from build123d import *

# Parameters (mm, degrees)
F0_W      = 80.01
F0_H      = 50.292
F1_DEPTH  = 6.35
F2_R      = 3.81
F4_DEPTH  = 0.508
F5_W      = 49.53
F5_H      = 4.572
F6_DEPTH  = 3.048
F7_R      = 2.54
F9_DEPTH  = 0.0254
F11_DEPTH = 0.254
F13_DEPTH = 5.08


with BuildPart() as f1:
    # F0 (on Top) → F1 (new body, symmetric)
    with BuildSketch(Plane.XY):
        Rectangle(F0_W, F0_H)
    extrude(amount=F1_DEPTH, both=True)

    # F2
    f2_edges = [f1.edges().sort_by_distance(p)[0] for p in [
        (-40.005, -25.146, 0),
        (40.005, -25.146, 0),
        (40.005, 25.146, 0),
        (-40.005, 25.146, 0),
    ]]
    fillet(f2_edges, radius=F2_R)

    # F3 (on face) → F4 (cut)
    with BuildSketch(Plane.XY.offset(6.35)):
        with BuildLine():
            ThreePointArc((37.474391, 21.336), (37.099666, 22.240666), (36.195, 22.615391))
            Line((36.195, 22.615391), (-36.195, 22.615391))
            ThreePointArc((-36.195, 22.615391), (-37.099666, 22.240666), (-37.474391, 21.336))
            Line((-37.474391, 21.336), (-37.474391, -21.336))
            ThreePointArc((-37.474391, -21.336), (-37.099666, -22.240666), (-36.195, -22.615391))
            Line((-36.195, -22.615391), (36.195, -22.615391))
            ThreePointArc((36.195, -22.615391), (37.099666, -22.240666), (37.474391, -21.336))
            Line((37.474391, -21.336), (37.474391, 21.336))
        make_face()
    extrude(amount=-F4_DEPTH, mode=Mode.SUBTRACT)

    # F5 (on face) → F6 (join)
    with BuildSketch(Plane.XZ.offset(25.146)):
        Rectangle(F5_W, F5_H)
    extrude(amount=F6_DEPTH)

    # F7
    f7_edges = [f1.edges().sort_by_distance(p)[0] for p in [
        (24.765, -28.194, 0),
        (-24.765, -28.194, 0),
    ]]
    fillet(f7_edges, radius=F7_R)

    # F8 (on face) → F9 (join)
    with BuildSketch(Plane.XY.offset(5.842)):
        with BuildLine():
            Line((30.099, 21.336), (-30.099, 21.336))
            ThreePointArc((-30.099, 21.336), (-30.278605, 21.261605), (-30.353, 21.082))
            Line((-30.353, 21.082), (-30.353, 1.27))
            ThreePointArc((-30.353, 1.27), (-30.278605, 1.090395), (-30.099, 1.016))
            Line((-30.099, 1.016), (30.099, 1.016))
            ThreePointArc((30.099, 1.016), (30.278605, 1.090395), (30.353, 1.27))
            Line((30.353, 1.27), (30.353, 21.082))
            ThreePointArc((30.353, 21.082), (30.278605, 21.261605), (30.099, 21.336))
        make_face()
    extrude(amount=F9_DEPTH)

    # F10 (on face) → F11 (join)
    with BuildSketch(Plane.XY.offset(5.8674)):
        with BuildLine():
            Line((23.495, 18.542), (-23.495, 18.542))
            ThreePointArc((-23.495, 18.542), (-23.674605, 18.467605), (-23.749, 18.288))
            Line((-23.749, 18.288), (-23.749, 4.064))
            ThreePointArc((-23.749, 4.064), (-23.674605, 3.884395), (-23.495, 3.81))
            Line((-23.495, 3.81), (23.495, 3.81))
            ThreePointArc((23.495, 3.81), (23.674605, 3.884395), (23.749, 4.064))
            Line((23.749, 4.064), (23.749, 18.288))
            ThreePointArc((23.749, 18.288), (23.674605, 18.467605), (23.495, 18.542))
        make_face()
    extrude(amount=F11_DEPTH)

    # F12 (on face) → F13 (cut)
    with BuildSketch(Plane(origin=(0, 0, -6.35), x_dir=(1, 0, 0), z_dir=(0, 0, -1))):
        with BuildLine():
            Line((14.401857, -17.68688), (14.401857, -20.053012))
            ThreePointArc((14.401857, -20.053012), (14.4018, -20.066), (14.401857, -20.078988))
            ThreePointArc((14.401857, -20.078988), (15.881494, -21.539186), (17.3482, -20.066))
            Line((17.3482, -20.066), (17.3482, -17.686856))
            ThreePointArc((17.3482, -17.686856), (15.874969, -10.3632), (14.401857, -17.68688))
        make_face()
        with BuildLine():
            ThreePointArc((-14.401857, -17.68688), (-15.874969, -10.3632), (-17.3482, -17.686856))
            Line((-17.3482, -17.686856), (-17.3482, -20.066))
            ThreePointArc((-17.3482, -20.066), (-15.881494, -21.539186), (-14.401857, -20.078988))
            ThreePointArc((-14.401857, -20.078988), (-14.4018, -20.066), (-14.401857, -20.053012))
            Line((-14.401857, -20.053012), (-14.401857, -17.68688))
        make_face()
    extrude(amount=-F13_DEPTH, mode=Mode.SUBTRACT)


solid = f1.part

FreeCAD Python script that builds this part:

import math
import FreeCAD as App
import Part
import Sketcher

V = App.Vector
Q = App.Units.Quantity


def edges_at(feature, points):
    """Names of the edges that pass closest to the given points."""
    edges = feature.Shape.Edges
    near = lambda p: min(range(len(edges)), key=lambda i: edges[i].distToShape(Part.Vertex(*p))[0])
    return sorted({f"Edge{near(p) + 1}" for p in points})


def add_polygon(sketch, points):
    """Adds a closed chain of lines whose ends are joined by coincident constraints."""
    first, n = sketch.GeometryCount, len(points)
    for a, b in zip(points, points[1:] + points[:1]):
        sketch.addGeometry(Part.LineSegment(App.Vector(*a, 0), App.Vector(*b, 0)), False)
    for i in range(n):
        sketch.addConstraint(Sketcher.Constraint("Coincident", first + i, 2, first + (i + 1) % n, 1))

doc = App.newDocument("Part")
params = doc.addObject("Spreadsheet::Sheet", "Params")
for row, (alias, value) in enumerate([
    ("sketch1_width", "3.15 in"),
    ("sketch1_height", "1.98 in"),
    ("pad1_length", "0.5 in"),
    ("fillet_radius", "0.15 in"),
    ("sketch2_width", "2.85 in"),
    ("sketch2_height", "1.68 in"),
    ("pocket1_length", "0.02 in"),
    ("sketch3_width", "1.95 in"),
    ("sketch3_height", "0.18 in"),
    ("pad2_length", "0.12 in"),
    ("fillet2_radius", "0.1 in"),
    ("sketch4_radius", "0.01 in"),
    ("sketch4_width", "2.37 in"),
    ("sketch4_height", "0.78 in"),
    ("pad3_length", "0.001 in"),
    ("sketch5_radius", "0.01 in"),
    ("sketch5_width", "1.85 in"),
    ("sketch5_height", "0.56 in"),
    ("pad4_length", "0.01 in"),
    ("sketch6_radius", "0.15 in"),
    ("sketch6_radius2", "0.058 in"),
    ("pocket2_length", "0.2 in"),
], start=1):
    params.set(f"A{row}", alias)
    params.set(f"B{row}", "=" + value)
    params.setAlias(f"B{row}", alias)

body = doc.addObject("PartDesign::Body", "Body")

# Sketch on XY plane
sketch1 = body.newObject("Sketcher::SketchObject", "Sketch")
sketch1.AttachmentSupport = (doc.getObject("XY_Plane"), [""])
sketch1.MapMode = "FlatFace"
add_polygon(sketch1, [(-40, 25), (-40, -25), (40, -25), (40, 25)])  # lines 0-3
sketch1.addConstraint(Sketcher.Constraint("Vertical", 0))
sketch1.addConstraint(Sketcher.Constraint("Horizontal", 1))
sketch1.addConstraint(Sketcher.Constraint("Vertical", 2))
sketch1.addConstraint(Sketcher.Constraint("Horizontal", 3))
sketch1.addConstraint(Sketcher.Constraint("Symmetric", 0, 2, 2, 2, -1, 1))
sketch1.addConstraint(Sketcher.Constraint("DistanceX", 1, 1, 1, 2, Q("3.15 in")))
sketch1.addConstraint(Sketcher.Constraint("DistanceY", 0, 2, 0, 1, Q("1.98 in")))
sketch1.setExpression("Constraints[9]", "Params.sketch1_width")
sketch1.setExpression("Constraints[10]", "Params.sketch1_height")
pad1 = body.newObject("PartDesign::Pad", "Pad")
pad1.Profile = sketch1
pad1.setExpression("Length", "Params.pad1_length")
pad1.Midplane = True
doc.recompute()

fillet = body.newObject("PartDesign::Fillet", "Fillet")
fillet.Base = (pad1, edges_at(pad1, [
    (-40.005, -25.146, 0),
    (40.005, -25.146, 0),
    (40.005, 25.146, 0),
    (-40.005, 25.146, 0),
]))
fillet.setExpression("Radius", "Params.fillet_radius")

# Sketch on XY plane
sketch2 = body.newObject("Sketcher::SketchObject", "Sketch001")
sketch2.AttachmentSupport = (doc.getObject("XY_Plane"), [""])
sketch2.MapMode = "FlatFace"
sketch2.AttachmentOffset = App.Placement(V(0, 0, 0.25 * 25.4), App.Rotation())
sketch2.addGeometry(Part.ArcOfCircle(Part.Circle(V(36.2, 21.3, 0), V(0, 0, 1), 1.3), math.radians(0), math.radians(90)), False)
sketch2.addGeometry(Part.LineSegment(V(36.2, 22.6, 0), V(-36.2, 22.6, 0)), False)
sketch2.addGeometry(Part.ArcOfCircle(Part.Circle(V(-36.2, 21.3, 0), V(0, 0, 1), 1.3), math.radians(90), math.radians(180)), False)
sketch2.addGeometry(Part.LineSegment(V(-37.5, 21.3, 0), V(-37.5, -21.3, 0)), False)
sketch2.addGeometry(Part.ArcOfCircle(Part.Circle(V(-36.2, -21.3, 0), V(0, 0, 1), 1.3), math.radians(-180), math.radians(-90)), False)
sketch2.addGeometry(Part.LineSegment(V(-36.2, -22.6, 0), V(36.2, -22.6, 0)), False)
sketch2.addGeometry(Part.ArcOfCircle(Part.Circle(V(36.2, -21.3, 0), V(0, 0, 1), 1.3), math.radians(-90), math.radians(0)), False)
sketch2.addGeometry(Part.LineSegment(V(37.5, -21.3, 0), V(37.5, 21.3, 0)), False)
sketch2.addConstraint(Sketcher.Constraint("Tangent", 0, 2, 1, 1))
sketch2.addConstraint(Sketcher.Constraint("Tangent", 1, 2, 2, 1))
sketch2.addConstraint(Sketcher.Constraint("Tangent", 2, 2, 3, 1))
sketch2.addConstraint(Sketcher.Constraint("Tangent", 3, 2, 4, 1))
sketch2.addConstraint(Sketcher.Constraint("Tangent", 4, 2, 5, 1))
sketch2.addConstraint(Sketcher.Constraint("Tangent", 5, 2, 6, 1))
sketch2.addConstraint(Sketcher.Constraint("Tangent", 6, 2, 7, 1))
sketch2.addConstraint(Sketcher.Constraint("Tangent", 7, 2, 0, 1))
sketch2.addConstraint(Sketcher.Constraint("Horizontal", 1))
sketch2.addConstraint(Sketcher.Constraint("Vertical", 3))
sketch2.addConstraint(Sketcher.Constraint("Horizontal", 5))
sketch2.addConstraint(Sketcher.Constraint("Vertical", 7))
sketch2.addConstraint(Sketcher.Constraint("Equal", 0, 2))
sketch2.addConstraint(Sketcher.Constraint("Equal", 2, 4))
sketch2.addConstraint(Sketcher.Constraint("Equal", 4, 6))
sketch2.addConstraint(Sketcher.Constraint("Symmetric", 0, 3, 4, 3, -1, 1))
sketch2.addConstraint(Sketcher.Constraint("DistanceX", 1, 2, 1, 1, Q("2.85 in")))
sketch2.addConstraint(Sketcher.Constraint("DistanceY", 3, 2, 3, 1, Q("1.68 in")))
sketch2.addConstraint(Sketcher.Constraint("Radius", 0, Q("1.279391 mm")))
sketch2.setExpression("Constraints[16]", "Params.sketch2_width")
sketch2.setExpression("Constraints[17]", "Params.sketch2_height")
pocket1 = body.newObject("PartDesign::Pocket", "Pocket")
pocket1.Profile = sketch2
pocket1.setExpression("Length", "Params.pocket1_length")

# Sketch on XZ plane
sketch3 = body.newObject("Sketcher::SketchObject", "Sketch002")
sketch3.AttachmentSupport = (doc.getObject("XZ_Plane"), [""])
sketch3.MapMode = "FlatFace"
sketch3.AttachmentOffset = App.Placement(V(0, 0, 0.99 * 25.4), App.Rotation())
add_polygon(sketch3, [(-24.8, 2.3), (-24.8, -2.3), (24.8, -2.3), (24.8, 2.3)])  # lines 0-3
sketch3.addConstraint(Sketcher.Constraint("Vertical", 0))
sketch3.addConstraint(Sketcher.Constraint("Horizontal", 1))
sketch3.addConstraint(Sketcher.Constraint("Vertical", 2))
sketch3.addConstraint(Sketcher.Constraint("Horizontal", 3))
sketch3.addConstraint(Sketcher.Constraint("Symmetric", 0, 2, 2, 2, -1, 1))
sketch3.addConstraint(Sketcher.Constraint("DistanceX", 1, 1, 1, 2, Q("1.95 in")))
sketch3.addConstraint(Sketcher.Constraint("DistanceY", 0, 2, 0, 1, Q("0.18 in")))
sketch3.setExpression("Constraints[9]", "Params.sketch3_width")
sketch3.setExpression("Constraints[10]", "Params.sketch3_height")
pad2 = body.newObject("PartDesign::Pad", "Pad001")
pad2.Profile = sketch3
pad2.setExpression("Length", "Params.pad2_length")
doc.recompute()

fillet2 = body.newObject("PartDesign::Fillet", "Fillet001")
fillet2.Base = (pad2, edges_at(pad2, [(24.765, -28.194, 0), (-24.765, -28.194, 0)]))
fillet2.setExpression("Radius", "Params.fillet2_radius")

# Sketch on XY plane
sketch4 = body.newObject("Sketcher::SketchObject", "Sketch003")
sketch4.AttachmentSupport = (doc.getObject("XY_Plane"), [""])
sketch4.MapMode = "FlatFace"
sketch4.AttachmentOffset = App.Placement(V(0, 0, 0.23 * 25.4), App.Rotation())
sketch4.addGeometry(Part.LineSegment(V(30.1, 21.34, 0), V(-30.1, 21.34, 0)), False)
sketch4.addGeometry(Part.ArcOfCircle(Part.Circle(V(-30.1, 21.08, 0), V(0, 0, 1), 0.25), math.radians(90), math.radians(180)), False)
sketch4.addGeometry(Part.LineSegment(V(-30.35, 21.08, 0), V(-30.35, 1.27, 0)), False)
sketch4.addGeometry(Part.ArcOfCircle(Part.Circle(V(-30.1, 1.27, 0), V(0, 0, 1), 0.25), math.radians(-180), math.radians(-90)), False)
sketch4.addGeometry(Part.LineSegment(V(-30.1, 1.02, 0), V(30.1, 1.02, 0)), False)
sketch4.addGeometry(Part.ArcOfCircle(Part.Circle(V(30.1, 1.27, 0), V(0, 0, 1), 0.25), math.radians(-90), math.radians(0)), False)
sketch4.addGeometry(Part.LineSegment(V(30.35, 1.27, 0), V(30.35, 21.08, 0)), False)
sketch4.addGeometry(Part.ArcOfCircle(Part.Circle(V(30.1, 21.08, 0), V(0, 0, 1), 0.25), math.radians(0), math.radians(90)), False)
sketch4.addConstraint(Sketcher.Constraint("Tangent", 0, 2, 1, 1))
sketch4.addConstraint(Sketcher.Constraint("Tangent", 1, 2, 2, 1))
sketch4.addConstraint(Sketcher.Constraint("Tangent", 2, 2, 3, 1))
sketch4.addConstraint(Sketcher.Constraint("Tangent", 3, 2, 4, 1))
sketch4.addConstraint(Sketcher.Constraint("Tangent", 4, 2, 5, 1))
sketch4.addConstraint(Sketcher.Constraint("Tangent", 5, 2, 6, 1))
sketch4.addConstraint(Sketcher.Constraint("Tangent", 6, 2, 7, 1))
sketch4.addConstraint(Sketcher.Constraint("Tangent", 7, 2, 0, 1))
sketch4.addConstraint(Sketcher.Constraint("Horizontal", 0))
sketch4.addConstraint(Sketcher.Constraint("Vertical", 2))
sketch4.addConstraint(Sketcher.Constraint("Horizontal", 4))
sketch4.addConstraint(Sketcher.Constraint("Vertical", 6))
sketch4.addConstraint(Sketcher.Constraint("Equal", 1, 3))
sketch4.addConstraint(Sketcher.Constraint("Equal", 3, 5))
sketch4.addConstraint(Sketcher.Constraint("Equal", 5, 7))
sketch4.addConstraint(Sketcher.Constraint("Radius", 1, Q("0.01 in")))
sketch4.addConstraint(Sketcher.Constraint("DistanceX", 0, 2, 0, 1, Q("2.37 in")))
sketch4.addConstraint(Sketcher.Constraint("DistanceY", 2, 2, 2, 1, Q("0.78 in")))
sketch4.addConstraint(Sketcher.Constraint("DistanceY", -1, 1, 1, 3, Q("0.83 in")))
sketch4.addConstraint(Sketcher.Constraint("DistanceX", 1, 3, -1, 1, Q("1.185 in")))
sketch4.setExpression("Constraints[15]", "Params.sketch4_radius")
sketch4.setExpression("Constraints[16]", "Params.sketch4_width")
sketch4.setExpression("Constraints[17]", "Params.sketch4_height")
pad3 = body.newObject("PartDesign::Pad", "Pad002")
pad3.Profile = sketch4
pad3.setExpression("Length", "Params.pad3_length")

# Sketch on XY plane
sketch5 = body.newObject("Sketcher::SketchObject", "Sketch004")
sketch5.AttachmentSupport = (doc.getObject("XY_Plane"), [""])
sketch5.MapMode = "FlatFace"
sketch5.AttachmentOffset = App.Placement(V(0, 0, 0.231 * 25.4), App.Rotation())
sketch5.addGeometry(Part.LineSegment(V(23.5, 18.54, 0), V(-23.5, 18.54, 0)), False)
sketch5.addGeometry(Part.ArcOfCircle(Part.Circle(V(-23.49, 18.29, 0), V(0, 0, 1), 0.25), math.radians(90), math.radians(180)), False)
sketch5.addGeometry(Part.LineSegment(V(-23.75, 18.29, 0), V(-23.75, 4.06, 0)), False)
sketch5.addGeometry(Part.ArcOfCircle(Part.Circle(V(-23.49, 4.06, 0), V(0, 0, 1), 0.25), math.radians(-180), math.radians(-90)), False)
sketch5.addGeometry(Part.LineSegment(V(-23.5, 3.81, 0), V(23.5, 3.81, 0)), False)
sketch5.addGeometry(Part.ArcOfCircle(Part.Circle(V(23.49, 4.06, 0), V(0, 0, 1), 0.25), math.radians(-90), math.radians(0)), False)
sketch5.addGeometry(Part.LineSegment(V(23.75, 4.06, 0), V(23.75, 18.29, 0)), False)
sketch5.addGeometry(Part.ArcOfCircle(Part.Circle(V(23.49, 18.29, 0), V(0, 0, 1), 0.25), math.radians(0), math.radians(90)), False)
sketch5.addConstraint(Sketcher.Constraint("Tangent", 0, 2, 1, 1))
sketch5.addConstraint(Sketcher.Constraint("Tangent", 1, 2, 2, 1))
sketch5.addConstraint(Sketcher.Constraint("Tangent", 2, 2, 3, 1))
sketch5.addConstraint(Sketcher.Constraint("Tangent", 3, 2, 4, 1))
sketch5.addConstraint(Sketcher.Constraint("Tangent", 4, 2, 5, 1))
sketch5.addConstraint(Sketcher.Constraint("Tangent", 5, 2, 6, 1))
sketch5.addConstraint(Sketcher.Constraint("Tangent", 6, 2, 7, 1))
sketch5.addConstraint(Sketcher.Constraint("Tangent", 7, 2, 0, 1))
sketch5.addConstraint(Sketcher.Constraint("Horizontal", 0))
sketch5.addConstraint(Sketcher.Constraint("Vertical", 2))
sketch5.addConstraint(Sketcher.Constraint("Horizontal", 4))
sketch5.addConstraint(Sketcher.Constraint("Vertical", 6))
sketch5.addConstraint(Sketcher.Constraint("Equal", 1, 3))
sketch5.addConstraint(Sketcher.Constraint("Equal", 3, 5))
sketch5.addConstraint(Sketcher.Constraint("Equal", 5, 7))
sketch5.addConstraint(Sketcher.Constraint("Radius", 1, Q("0.01 in")))
sketch5.addConstraint(Sketcher.Constraint("DistanceX", 0, 2, 0, 1, Q("1.85 in")))
sketch5.addConstraint(Sketcher.Constraint("DistanceY", 2, 2, 2, 1, Q("0.56 in")))
sketch5.addConstraint(Sketcher.Constraint("DistanceY", -1, 1, 1, 3, Q("0.72 in")))
sketch5.addConstraint(Sketcher.Constraint("DistanceX", 1, 3, -1, 1, Q("0.925 in")))
sketch5.setExpression("Constraints[15]", "Params.sketch5_radius")
sketch5.setExpression("Constraints[16]", "Params.sketch5_width")
sketch5.setExpression("Constraints[17]", "Params.sketch5_height")
pad4 = body.newObject("PartDesign::Pad", "Pad003")
pad4.Profile = sketch5
pad4.setExpression("Length", "Params.pad4_length")

# Sketch on XY plane
sketch6 = body.newObject("Sketcher::SketchObject", "Sketch005")
sketch6.AttachmentSupport = (doc.getObject("XY_Plane"), [""])
sketch6.MapMode = "FlatFace"
sketch6.AttachmentOffset = App.Placement(V(0, 0, -0.25 * 25.4), App.Rotation())
sketch6.addGeometry(Part.LineSegment(V(14.402, 17.687, 0), V(14.402, 20.053, 0)), False)
sketch6.addGeometry(Part.ArcOfCircle(Part.Circle(V(15.882, 20.066, 0), V(0, 0, 1), 1.48), math.radians(179.5), math.radians(180.5)), False)
sketch6.addGeometry(Part.ArcOfCircle(Part.Circle(V(15.875, 20.066, 0), V(0, 0, 1), 1.473), math.radians(0), math.radians(179)), False)
sketch6.addGeometry(Part.LineSegment(V(17.348, 20.066, 0), V(17.348, 17.687, 0)), False)
sketch6.addGeometry(Part.ArcOfCircle(Part.Circle(V(15.875, 14.173, 0), V(0, 0, 1), 3.81), math.radians(113), math.radians(427)), False)
sketch6.addGeometry(Part.ArcOfCircle(Part.Circle(V(-15.875, 14.173, 0), V(0, 0, 1), 3.81), math.radians(113), math.radians(427)), False)
sketch6.addGeometry(Part.LineSegment(V(-17.348, 17.687, 0), V(-17.348, 20.066, 0)), False)
sketch6.addGeometry(Part.ArcOfCircle(Part.Circle(V(-15.875, 20.066, 0), V(0, 0, 1), 1.473), math.radians(1), math.radians(180)), False)
sketch6.addGeometry(Part.ArcOfCircle(Part.Circle(V(-15.882, 20.066, 0), V(0, 0, 1), 1.48), math.radians(-0.5), math.radians(0.5)), False)
sketch6.addGeometry(Part.LineSegment(V(-14.402, 20.053, 0), V(-14.402, 17.687, 0)), False)
sketch6.addConstraint(Sketcher.Constraint("Coincident", 0, 2, 1, 2))
sketch6.addConstraint(Sketcher.Constraint("Coincident", 1, 1, 2, 2))
sketch6.addConstraint(Sketcher.Constraint("Tangent", 2, 1, 3, 1))
sketch6.addConstraint(Sketcher.Constraint("Coincident", 3, 2, 4, 2))
sketch6.addConstraint(Sketcher.Constraint("Coincident", 4, 1, 0, 1))
sketch6.addConstraint(Sketcher.Constraint("Coincident", 5, 1, 6, 1))
sketch6.addConstraint(Sketcher.Constraint("Tangent", 6, 2, 7, 2))
sketch6.addConstraint(Sketcher.Constraint("Coincident", 7, 1, 8, 2))
sketch6.addConstraint(Sketcher.Constraint("Coincident", 8, 1, 9, 1))
sketch6.addConstraint(Sketcher.Constraint("Coincident", 9, 2, 5, 2))
sketch6.addConstraint(Sketcher.Constraint("Vertical", 0))
sketch6.addConstraint(Sketcher.Constraint("Vertical", 3))
sketch6.addConstraint(Sketcher.Constraint("Vertical", 6))
sketch6.addConstraint(Sketcher.Constraint("Vertical", 9))
sketch6.addConstraint(Sketcher.Constraint("Equal", 4, 5))
sketch6.addConstraint(Sketcher.Constraint("Equal", 2, 7))
sketch6.addConstraint(Sketcher.Constraint("Equal", 1, 8))
sketch6.addConstraint(Sketcher.Constraint("Symmetric", 4, 3, 5, 3, -2))
sketch6.addConstraint(Sketcher.Constraint("Symmetric", 2, 3, 7, 3, -2))
sketch6.addConstraint(Sketcher.Constraint("Symmetric", 1, 3, 8, 3, -2))
sketch6.addConstraint(Sketcher.Constraint("Horizontal", 1, 3, 2, 3))
sketch6.addConstraint(Sketcher.Constraint("Horizontal", 0, 2, 8, 1))
sketch6.addConstraint(Sketcher.Constraint("Vertical", 2, 3, 4, 3))
sketch6.addConstraint(Sketcher.Constraint("Vertical", 0, 2, 1, 1))
sketch6.addConstraint(Sketcher.Constraint("Radius", 4, Q("0.15 in")))
sketch6.addConstraint(Sketcher.Constraint("Radius", 2, Q("0.058 in")))
sketch6.addConstraint(Sketcher.Constraint("DistanceY", -1, 1, 1, 3, Q("0.79 in")))
sketch6.addConstraint(Sketcher.Constraint("DistanceX", 5, 3, 4, 3, Q("1.25 in")))
sketch6.addConstraint(Sketcher.Constraint("DistanceY", -1, 1, 4, 3, Q("0.558 in")))
sketch6.addConstraint(Sketcher.Constraint("Radius", 1, Q("1.479749 mm")))
sketch6.addConstraint(Sketcher.Constraint("DistanceY", 0, 1, 0, 2, Q("2.366132 mm")))
sketch6.setExpression("Constraints[24]", "Params.sketch6_radius")
sketch6.setExpression("Constraints[25]", "Params.sketch6_radius2")
pocket2 = body.newObject("PartDesign::Pocket", "Pocket001")
pocket2.Profile = sketch6
pocket2.setExpression("Length", "Params.pocket2_length")
pocket2.Reversed = True

doc.recompute()
